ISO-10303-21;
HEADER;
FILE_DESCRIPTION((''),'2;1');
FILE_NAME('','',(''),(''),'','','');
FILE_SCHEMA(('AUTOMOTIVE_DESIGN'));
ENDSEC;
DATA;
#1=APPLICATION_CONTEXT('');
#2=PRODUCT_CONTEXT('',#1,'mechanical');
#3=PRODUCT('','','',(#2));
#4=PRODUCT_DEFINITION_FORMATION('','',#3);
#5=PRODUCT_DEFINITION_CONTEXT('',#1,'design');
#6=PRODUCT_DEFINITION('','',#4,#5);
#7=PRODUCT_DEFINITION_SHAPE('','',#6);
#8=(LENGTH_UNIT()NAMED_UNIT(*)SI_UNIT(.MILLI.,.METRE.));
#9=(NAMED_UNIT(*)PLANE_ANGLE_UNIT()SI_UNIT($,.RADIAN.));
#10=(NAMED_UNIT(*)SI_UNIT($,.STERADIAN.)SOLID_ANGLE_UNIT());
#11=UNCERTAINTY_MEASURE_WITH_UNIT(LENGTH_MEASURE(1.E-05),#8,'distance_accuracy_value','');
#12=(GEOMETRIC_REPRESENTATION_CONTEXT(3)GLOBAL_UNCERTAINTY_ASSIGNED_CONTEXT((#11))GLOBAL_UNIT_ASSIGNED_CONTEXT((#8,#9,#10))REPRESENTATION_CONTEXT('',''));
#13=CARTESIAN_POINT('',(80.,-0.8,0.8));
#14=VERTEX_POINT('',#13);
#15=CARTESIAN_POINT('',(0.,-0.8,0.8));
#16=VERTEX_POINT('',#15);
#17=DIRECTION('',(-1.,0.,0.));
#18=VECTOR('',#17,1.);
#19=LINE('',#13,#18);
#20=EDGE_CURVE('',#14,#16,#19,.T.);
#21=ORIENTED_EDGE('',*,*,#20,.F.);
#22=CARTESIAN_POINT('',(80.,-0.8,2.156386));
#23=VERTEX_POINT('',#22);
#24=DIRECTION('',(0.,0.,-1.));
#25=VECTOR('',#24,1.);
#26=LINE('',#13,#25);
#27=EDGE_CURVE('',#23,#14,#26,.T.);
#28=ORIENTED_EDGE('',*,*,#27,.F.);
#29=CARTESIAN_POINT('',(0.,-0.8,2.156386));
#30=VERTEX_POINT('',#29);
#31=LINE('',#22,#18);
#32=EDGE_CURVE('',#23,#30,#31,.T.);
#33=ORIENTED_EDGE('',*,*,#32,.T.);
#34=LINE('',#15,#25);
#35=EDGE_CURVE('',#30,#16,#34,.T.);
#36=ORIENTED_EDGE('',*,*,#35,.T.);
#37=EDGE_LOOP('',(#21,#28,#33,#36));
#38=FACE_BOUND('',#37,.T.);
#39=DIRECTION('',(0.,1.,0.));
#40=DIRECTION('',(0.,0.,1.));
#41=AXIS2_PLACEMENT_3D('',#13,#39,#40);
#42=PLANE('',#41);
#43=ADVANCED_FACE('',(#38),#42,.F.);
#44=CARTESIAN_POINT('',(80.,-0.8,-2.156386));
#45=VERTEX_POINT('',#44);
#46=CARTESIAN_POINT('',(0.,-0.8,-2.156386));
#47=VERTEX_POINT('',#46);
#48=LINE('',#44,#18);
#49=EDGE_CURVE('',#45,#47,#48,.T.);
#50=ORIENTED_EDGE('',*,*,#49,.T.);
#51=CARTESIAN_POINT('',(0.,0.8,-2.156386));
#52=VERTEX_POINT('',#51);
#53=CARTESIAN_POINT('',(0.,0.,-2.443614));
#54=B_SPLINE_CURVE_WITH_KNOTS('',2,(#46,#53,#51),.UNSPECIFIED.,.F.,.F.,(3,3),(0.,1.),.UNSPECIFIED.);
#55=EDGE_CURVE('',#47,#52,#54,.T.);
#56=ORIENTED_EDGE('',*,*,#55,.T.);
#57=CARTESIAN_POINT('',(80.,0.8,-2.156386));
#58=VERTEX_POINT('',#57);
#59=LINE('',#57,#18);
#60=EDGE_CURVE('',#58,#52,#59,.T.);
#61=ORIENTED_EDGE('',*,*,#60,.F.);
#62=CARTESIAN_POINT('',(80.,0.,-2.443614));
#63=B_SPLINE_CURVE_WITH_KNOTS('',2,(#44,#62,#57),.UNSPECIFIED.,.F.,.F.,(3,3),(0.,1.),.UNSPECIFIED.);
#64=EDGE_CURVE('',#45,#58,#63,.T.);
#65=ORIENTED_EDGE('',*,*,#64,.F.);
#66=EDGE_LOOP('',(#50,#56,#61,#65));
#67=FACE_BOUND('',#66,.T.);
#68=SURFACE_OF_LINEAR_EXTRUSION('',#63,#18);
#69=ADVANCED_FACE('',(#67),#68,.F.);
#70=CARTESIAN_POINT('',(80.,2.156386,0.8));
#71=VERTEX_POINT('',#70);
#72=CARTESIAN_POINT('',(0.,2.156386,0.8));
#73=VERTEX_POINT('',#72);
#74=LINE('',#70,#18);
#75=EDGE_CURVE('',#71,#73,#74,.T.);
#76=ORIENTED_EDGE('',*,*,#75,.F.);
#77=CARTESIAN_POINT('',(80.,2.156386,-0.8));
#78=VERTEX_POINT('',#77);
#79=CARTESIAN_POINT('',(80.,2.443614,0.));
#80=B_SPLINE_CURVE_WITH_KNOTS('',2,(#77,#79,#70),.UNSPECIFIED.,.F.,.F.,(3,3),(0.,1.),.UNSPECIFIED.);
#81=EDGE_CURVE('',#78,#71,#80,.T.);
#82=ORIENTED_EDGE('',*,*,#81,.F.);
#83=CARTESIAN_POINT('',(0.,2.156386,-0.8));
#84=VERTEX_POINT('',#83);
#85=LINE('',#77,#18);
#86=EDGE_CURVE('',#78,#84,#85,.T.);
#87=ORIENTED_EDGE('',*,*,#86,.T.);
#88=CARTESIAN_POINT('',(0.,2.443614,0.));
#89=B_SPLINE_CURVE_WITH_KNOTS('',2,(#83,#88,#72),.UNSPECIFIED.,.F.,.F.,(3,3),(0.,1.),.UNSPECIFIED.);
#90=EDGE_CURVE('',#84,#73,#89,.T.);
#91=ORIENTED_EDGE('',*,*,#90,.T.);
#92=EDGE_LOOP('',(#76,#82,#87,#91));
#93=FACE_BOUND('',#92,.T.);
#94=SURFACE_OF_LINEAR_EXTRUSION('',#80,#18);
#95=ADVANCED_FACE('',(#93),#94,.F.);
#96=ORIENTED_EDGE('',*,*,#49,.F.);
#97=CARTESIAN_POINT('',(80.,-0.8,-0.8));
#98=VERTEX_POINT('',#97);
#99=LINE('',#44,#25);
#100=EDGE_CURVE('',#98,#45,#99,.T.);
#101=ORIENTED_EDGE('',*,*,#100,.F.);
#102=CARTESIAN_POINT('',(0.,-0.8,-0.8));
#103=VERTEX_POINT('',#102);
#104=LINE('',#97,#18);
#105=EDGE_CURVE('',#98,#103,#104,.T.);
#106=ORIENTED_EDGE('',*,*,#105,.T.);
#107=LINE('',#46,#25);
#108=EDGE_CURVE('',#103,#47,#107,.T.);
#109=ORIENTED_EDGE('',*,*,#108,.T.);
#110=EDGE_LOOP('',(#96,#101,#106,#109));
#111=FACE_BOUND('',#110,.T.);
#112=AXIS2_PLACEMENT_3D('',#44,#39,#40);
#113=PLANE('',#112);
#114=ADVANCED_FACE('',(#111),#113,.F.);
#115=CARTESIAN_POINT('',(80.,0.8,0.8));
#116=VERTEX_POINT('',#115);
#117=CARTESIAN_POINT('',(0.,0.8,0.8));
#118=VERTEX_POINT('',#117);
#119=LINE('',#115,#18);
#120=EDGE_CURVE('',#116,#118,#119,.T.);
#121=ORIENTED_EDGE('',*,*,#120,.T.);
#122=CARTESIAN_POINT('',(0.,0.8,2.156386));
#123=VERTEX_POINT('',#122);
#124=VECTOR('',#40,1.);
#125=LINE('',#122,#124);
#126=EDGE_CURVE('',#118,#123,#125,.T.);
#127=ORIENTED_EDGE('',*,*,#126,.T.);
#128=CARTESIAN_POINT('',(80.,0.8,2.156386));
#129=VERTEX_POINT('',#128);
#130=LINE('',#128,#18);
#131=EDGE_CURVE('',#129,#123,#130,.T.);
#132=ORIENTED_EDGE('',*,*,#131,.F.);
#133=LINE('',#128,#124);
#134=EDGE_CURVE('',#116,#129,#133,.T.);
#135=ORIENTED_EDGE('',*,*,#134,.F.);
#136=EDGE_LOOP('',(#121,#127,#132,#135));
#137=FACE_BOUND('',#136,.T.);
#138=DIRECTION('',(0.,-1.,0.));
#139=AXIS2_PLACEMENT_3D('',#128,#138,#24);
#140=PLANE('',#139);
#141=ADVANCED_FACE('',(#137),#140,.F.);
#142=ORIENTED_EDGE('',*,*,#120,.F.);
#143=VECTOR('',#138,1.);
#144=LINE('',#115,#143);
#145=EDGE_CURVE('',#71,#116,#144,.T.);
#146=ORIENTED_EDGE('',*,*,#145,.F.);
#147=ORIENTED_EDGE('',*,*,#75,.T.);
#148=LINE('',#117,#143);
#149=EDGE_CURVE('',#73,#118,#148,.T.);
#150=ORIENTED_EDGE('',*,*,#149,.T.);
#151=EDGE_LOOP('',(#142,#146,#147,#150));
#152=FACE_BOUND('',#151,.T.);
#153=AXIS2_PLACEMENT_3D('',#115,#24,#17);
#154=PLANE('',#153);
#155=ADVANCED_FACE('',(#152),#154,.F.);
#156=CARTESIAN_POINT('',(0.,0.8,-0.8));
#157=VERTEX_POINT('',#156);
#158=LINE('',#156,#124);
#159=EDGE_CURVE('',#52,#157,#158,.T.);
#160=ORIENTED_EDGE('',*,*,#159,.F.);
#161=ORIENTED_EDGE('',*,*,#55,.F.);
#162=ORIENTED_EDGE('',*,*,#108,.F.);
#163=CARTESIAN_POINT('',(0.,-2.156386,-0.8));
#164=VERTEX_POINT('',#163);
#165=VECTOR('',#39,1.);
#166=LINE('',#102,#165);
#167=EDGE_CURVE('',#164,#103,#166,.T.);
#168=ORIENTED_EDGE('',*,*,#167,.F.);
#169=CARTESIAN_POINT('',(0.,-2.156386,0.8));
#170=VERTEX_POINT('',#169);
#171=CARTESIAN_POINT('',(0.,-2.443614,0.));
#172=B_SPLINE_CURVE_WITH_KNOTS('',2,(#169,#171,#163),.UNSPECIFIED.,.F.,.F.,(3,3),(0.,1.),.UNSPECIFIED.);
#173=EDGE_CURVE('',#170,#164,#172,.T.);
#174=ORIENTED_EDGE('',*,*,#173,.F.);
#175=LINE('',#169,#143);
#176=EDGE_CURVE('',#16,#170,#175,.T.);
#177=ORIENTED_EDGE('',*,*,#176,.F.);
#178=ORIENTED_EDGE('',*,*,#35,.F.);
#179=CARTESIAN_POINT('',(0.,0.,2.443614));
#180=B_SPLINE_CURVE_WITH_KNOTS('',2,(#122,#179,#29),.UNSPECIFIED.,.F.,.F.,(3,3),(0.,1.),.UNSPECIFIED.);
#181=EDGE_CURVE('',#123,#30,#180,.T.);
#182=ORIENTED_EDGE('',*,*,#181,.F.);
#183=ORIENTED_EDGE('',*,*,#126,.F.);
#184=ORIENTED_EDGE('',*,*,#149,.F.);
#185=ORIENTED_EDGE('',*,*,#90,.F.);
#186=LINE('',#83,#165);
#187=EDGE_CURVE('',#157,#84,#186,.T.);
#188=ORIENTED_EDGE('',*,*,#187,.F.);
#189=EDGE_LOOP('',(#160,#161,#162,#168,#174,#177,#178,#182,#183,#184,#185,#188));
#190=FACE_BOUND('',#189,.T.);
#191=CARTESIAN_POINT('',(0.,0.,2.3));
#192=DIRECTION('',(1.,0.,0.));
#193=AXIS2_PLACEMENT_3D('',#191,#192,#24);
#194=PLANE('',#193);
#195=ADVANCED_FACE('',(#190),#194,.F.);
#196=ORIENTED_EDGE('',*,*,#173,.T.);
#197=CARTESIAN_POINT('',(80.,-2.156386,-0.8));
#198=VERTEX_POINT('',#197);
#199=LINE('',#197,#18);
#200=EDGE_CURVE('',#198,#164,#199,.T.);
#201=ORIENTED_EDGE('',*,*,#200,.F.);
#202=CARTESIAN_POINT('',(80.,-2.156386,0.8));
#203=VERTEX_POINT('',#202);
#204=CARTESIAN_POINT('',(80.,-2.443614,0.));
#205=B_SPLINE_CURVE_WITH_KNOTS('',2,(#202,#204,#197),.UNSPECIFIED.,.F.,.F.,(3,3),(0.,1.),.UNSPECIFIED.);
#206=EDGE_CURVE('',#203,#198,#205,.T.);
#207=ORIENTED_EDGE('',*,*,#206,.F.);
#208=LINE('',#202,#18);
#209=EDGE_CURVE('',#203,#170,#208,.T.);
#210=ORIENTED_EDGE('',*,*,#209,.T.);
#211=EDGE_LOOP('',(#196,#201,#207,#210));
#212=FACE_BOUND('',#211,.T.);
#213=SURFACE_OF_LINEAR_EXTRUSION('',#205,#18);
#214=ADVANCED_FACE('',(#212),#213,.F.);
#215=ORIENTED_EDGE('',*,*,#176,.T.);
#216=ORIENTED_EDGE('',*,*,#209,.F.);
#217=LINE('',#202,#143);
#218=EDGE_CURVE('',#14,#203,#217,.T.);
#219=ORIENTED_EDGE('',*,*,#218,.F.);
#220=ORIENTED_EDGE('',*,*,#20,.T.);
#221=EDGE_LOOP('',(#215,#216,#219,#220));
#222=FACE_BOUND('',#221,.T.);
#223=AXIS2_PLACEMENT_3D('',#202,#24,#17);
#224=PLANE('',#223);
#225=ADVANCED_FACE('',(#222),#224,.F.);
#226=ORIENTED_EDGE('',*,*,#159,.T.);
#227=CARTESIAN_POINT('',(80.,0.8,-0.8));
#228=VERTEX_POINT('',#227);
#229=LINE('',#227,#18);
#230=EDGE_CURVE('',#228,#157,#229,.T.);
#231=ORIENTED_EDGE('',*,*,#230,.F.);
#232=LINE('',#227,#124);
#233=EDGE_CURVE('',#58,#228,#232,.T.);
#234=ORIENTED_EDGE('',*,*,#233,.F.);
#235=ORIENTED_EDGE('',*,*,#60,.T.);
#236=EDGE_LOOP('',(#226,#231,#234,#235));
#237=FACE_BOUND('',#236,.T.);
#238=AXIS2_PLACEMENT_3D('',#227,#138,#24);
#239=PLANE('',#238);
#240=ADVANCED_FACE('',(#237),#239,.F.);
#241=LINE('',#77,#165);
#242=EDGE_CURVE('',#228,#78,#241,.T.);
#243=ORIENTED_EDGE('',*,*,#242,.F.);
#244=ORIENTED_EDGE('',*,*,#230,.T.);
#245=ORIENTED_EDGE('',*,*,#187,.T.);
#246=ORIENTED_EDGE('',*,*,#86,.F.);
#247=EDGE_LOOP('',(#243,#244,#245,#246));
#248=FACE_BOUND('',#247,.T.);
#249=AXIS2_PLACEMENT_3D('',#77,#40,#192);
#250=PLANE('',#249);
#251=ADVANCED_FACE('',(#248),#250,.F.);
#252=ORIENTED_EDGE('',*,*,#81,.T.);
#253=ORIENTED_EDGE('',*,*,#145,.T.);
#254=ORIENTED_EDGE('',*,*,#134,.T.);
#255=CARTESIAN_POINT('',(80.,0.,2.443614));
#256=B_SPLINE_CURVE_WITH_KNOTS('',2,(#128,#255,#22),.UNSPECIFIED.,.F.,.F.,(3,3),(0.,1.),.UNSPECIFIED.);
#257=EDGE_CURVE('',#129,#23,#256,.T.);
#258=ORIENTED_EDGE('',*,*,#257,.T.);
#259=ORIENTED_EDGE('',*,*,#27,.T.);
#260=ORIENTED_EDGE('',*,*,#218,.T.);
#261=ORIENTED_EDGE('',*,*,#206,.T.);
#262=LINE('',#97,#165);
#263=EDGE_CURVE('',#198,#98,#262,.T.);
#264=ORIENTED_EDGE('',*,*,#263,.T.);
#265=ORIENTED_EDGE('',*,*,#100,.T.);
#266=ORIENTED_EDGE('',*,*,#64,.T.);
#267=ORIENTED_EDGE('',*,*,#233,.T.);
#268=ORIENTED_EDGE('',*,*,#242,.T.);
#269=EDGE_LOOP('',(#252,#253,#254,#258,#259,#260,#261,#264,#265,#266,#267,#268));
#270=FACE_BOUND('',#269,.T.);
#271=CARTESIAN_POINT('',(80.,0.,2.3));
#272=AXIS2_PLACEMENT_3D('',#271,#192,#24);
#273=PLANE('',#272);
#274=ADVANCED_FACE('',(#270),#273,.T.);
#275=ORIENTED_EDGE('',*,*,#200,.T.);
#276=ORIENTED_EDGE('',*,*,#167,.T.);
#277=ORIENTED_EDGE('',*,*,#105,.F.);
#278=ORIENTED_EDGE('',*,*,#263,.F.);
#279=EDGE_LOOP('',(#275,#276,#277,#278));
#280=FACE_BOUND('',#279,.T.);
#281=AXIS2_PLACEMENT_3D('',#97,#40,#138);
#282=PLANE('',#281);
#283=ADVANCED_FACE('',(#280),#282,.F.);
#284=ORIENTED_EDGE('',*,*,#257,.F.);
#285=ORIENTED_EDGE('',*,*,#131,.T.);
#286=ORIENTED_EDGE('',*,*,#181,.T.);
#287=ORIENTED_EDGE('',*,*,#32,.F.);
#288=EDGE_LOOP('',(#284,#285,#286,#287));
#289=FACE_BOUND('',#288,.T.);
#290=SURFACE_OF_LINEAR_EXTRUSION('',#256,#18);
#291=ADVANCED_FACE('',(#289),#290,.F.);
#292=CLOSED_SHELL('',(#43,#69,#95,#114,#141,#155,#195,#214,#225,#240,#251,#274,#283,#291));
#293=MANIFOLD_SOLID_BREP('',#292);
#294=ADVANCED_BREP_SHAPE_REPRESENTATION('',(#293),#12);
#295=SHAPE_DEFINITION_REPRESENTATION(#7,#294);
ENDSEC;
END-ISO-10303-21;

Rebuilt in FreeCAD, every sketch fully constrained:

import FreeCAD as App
import Part
import Sketcher

doc = App.newDocument("Part")
body = doc.addObject("PartDesign::Body", "Body")

# Sketch on YZ plane
sketch1 = body.newObject("Sketcher::SketchObject", "Sketch")
sketch1.AttachmentSupport = (doc.getObject("YZ_Plane"), [""])
sketch1.MapMode = "FlatFace"
sketch1.addGeometry([
    Part.LineSegment(App.Vector(0.8, 0.8, 0), App.Vector(0.8, 2.156386, 0)),  # 0
    Part.BSplineCurve([App.Vector(-0.8, 2.156386, 0), App.Vector(0, 2.443614, 0), App.Vector(0.8, 2.156386, 0)], [3, 3], [0, 1], False, 2, [1, 1, 1], False),  # 1
    Part.LineSegment(App.Vector(-0.8, 2.156386, 0), App.Vector(-0.8, 0.8, 0)),  # 2
    Part.LineSegment(App.Vector(-0.8, 0.8, 0), App.Vector(-2.156386, 0.8, 0)),  # 3
    Part.BSplineCurve([App.Vector(-2.156386, -0.8, 0), App.Vector(-2.443614, 0, 0), App.Vector(-2.156386, 0.8, 0)], [3, 3], [0, 1], False, 2, [1, 1, 1], False),  # 4
    Part.LineSegment(App.Vector(-2.156386, -0.8, 0), App.Vector(-0.8, -0.8, 0)),  # 5
    Part.LineSegment(App.Vector(-0.8, -0.8, 0), App.Vector(-0.8, -2.156386, 0)),  # 6
    Part.BSplineCurve([App.Vector(0.8, -2.156386, 0), App.Vector(0, -2.443614, 0), App.Vector(-0.8, -2.156386, 0)], [3, 3], [0, 1], False, 2, [1, 1, 1], False),  # 7
    Part.LineSegment(App.Vector(0.8, -2.156386, 0), App.Vector(0.8, -0.8, 0)),  # 8
    Part.LineSegment(App.Vector(0.8, -0.8, 0), App.Vector(2.156386, -0.8, 0)),  # 9
    Part.BSplineCurve([App.Vector(2.156386, 0.8, 0), App.Vector(2.443614, 0, 0), App.Vector(2.156386, -0.8, 0)], [3, 3], [0, 1], False, 2, [1, 1, 1], False),  # 10
    Part.LineSegment(App.Vector(2.156386, 0.8, 0), App.Vector(0.8, 0.8, 0)),  # 11
], False)
sketch1.addConstraint([
    Sketcher.Constraint("Block", 1),
    Sketcher.Constraint("Block", 4),
    Sketcher.Constraint("Block", 7),
    Sketcher.Constraint("Block", 10),
    Sketcher.Constraint("Coincident", 0, 2, 1, 2),
    Sketcher.Constraint("Coincident", 1, 1, 2, 1),
    Sketcher.Constraint("Coincident", 2, 2, 3, 1),
    Sketcher.Constraint("Coincident", 3, 2, 4, 2),
    Sketcher.Constraint("Coincident", 4, 1, 5, 1),
    Sketcher.Constraint("Coincident", 5, 2, 6, 1),
    Sketcher.Constraint("Coincident", 6, 2, 7, 2),
    Sketcher.Constraint("Coincident", 7, 1, 8, 1),
    Sketcher.Constraint("Coincident", 8, 2, 9, 1),
    Sketcher.Constraint("Coincident", 9, 2, 10, 2),
    Sketcher.Constraint("Coincident", 10, 1, 11, 1),
    Sketcher.Constraint("Coincident", 11, 2, 0, 1),
    Sketcher.Constraint("Vertical", 0),
    Sketcher.Constraint("Vertical", 2),
    Sketcher.Constraint("Horizontal", 3),
    Sketcher.Constraint("Horizontal", 5),
    Sketcher.Constraint("Vertical", 6),
    Sketcher.Constraint("Vertical", 8),
    Sketcher.Constraint("Horizontal", 9),
    Sketcher.Constraint("Horizontal", 11),
])
pad1 = body.newObject("PartDesign::Pad", "Pad")
pad1.Profile = sketch1
pad1.Length = 80

doc.recompute()
